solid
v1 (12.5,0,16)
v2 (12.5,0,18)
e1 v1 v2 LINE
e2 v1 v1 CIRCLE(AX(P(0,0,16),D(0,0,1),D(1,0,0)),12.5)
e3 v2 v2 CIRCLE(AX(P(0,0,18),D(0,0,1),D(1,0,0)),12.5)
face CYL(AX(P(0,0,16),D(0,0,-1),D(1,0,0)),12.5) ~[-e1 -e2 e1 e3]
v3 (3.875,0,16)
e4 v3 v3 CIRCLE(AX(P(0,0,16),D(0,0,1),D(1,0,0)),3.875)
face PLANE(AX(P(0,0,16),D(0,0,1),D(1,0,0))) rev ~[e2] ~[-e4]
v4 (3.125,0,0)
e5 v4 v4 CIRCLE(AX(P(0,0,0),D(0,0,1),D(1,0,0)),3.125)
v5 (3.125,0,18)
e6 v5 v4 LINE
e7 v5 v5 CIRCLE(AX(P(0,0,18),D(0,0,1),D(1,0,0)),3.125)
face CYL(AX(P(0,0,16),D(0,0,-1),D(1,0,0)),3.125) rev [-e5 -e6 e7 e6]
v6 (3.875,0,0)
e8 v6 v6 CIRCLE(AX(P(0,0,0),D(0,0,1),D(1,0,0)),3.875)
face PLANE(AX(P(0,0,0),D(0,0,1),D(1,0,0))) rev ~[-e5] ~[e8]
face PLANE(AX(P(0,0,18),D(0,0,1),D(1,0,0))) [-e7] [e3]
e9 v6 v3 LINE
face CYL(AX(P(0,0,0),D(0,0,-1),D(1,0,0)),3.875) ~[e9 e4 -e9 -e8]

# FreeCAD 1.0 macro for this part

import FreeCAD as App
import Part
import Sketcher
Q = App.Units.Quantity

doc = App.newDocument("Part")
body = doc.addObject("PartDesign::Body", "Body")

# Sketch on XY plane
sketch1 = body.newObject("Sketcher::SketchObject", "Sketch")
sketch1.AttachmentSupport = (doc.getObject("XY_Plane"), [""])
sketch1.MapMode = "FlatFace"
sketch1.addGeometry(Part.Circle(App.Vector(0, 0, 0), App.Vector(0, 0, 1), 3.9), False)
sketch1.addGeometry(Part.Circle(App.Vector(0, 0, 0), App.Vector(0, 0, 1), 3.1), False)
sketch1.addConstraint(Sketcher.Constraint("Coincident", 0, 3, -1, 1))
sketch1.addConstraint(Sketcher.Constraint("Coincident", 1, 3, -1, 1))
sketch1.addConstraint(Sketcher.Constraint("Diameter", 0, Q("7.75 mm")))
sketch1.addConstraint(Sketcher.Constraint("Diameter", 1, Q("6.25 mm")))
pad1 = body.newObject("PartDesign::Pad", "Pad")
pad1.Profile = sketch1
pad1.Length = 16

# Sketch on XY plane
sketch2 = body.newObject("Sketcher::SketchObject", "Sketch001")
sketch2.AttachmentSupport = (doc.getObject("XY_Plane"), [""])
sketch2.MapMode = "FlatFace"
sketch2.AttachmentOffset = App.Placement(App.Vector(0, 0, 16), App.Rotation())
sketch2.addGeometry(Part.Circle(App.Vector(0, 0, 0), App.Vector(0, 0, 1), 12.5), False)
sketch2.addGeometry(Part.Circle(App.Vector(0, 0, 0), App.Vector(0, 0, 1), 3.1), False)
sketch2.addConstraint(Sketcher.Constraint("Coincident", 0, 3, -1, 1))
sketch2.addConstraint(Sketcher.Constraint("Coincident", 1, 3, -1, 1))
sketch2.addConstraint(Sketcher.Constraint("Diameter", 0, Q("25 mm")))
sketch2.addConstraint(Sketcher.Constraint("Diameter", 1, Q("6.25 mm")))
pad2 = body.newObject("PartDesign::Pad", "Pad001")
pad2.Profile = sketch2
pad2.Length = 2

doc.recompute()
